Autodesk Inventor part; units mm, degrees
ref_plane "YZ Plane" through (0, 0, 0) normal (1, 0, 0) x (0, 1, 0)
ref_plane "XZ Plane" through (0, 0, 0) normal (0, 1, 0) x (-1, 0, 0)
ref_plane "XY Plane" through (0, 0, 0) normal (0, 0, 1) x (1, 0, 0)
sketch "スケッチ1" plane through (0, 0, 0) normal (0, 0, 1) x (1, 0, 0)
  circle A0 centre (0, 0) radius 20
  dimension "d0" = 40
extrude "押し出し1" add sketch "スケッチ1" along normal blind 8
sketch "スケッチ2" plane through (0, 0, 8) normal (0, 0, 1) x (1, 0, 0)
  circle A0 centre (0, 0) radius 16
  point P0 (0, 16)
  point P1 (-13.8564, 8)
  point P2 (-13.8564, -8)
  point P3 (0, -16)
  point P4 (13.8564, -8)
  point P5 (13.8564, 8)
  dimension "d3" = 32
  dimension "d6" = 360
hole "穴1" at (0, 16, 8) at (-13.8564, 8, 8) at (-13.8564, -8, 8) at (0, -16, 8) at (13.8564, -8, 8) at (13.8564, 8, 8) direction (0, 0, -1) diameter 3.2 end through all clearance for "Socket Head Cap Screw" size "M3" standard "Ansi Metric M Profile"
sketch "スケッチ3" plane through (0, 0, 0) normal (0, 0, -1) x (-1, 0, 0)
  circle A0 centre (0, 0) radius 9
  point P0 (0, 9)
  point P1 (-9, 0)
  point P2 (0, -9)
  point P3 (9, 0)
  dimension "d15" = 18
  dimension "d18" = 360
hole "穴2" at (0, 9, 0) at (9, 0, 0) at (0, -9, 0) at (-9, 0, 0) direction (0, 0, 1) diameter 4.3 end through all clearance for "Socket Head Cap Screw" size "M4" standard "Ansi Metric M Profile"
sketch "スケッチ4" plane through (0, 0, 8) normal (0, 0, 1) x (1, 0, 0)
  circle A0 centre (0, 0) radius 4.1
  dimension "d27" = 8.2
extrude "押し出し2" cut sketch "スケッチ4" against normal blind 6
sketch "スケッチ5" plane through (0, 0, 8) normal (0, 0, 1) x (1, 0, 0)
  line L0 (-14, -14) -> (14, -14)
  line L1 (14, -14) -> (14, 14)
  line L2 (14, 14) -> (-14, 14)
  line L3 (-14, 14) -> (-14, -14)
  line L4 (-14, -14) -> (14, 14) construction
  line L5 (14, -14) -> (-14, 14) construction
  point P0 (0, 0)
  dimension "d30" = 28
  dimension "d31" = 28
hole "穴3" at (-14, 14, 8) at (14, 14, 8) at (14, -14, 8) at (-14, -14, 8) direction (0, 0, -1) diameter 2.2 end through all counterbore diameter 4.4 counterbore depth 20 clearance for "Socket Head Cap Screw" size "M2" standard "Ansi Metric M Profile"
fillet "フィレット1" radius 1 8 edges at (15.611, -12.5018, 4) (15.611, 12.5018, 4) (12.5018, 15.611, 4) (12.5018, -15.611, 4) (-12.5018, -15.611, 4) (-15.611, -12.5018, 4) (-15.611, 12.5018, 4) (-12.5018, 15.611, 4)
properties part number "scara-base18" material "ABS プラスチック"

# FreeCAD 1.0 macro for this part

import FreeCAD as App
import Part
import Sketcher


def edges_at(feature, points):
    """Names of the edges that pass closest to the given points."""
    edges = feature.Shape.Edges
    near = lambda p: min(range(len(edges)), key=lambda i: edges[i].distToShape(Part.Vertex(*p))[0])
    return sorted({f"Edge{near(p) + 1}" for p in points})

doc = App.newDocument("Part")
body = doc.addObject("PartDesign::Body", "Body")

sketch1 = doc.addObject("Sketcher::SketchObject", "Sketch")
body.addObject(sketch1)
sketch1.AttachmentSupport = (doc.XY_Plane, [""])
sketch1.MapMode = "FlatFace"
sketch1.addGeometry(Part.Circle(App.Vector(0, 0, 0), App.Vector(0, 0, 1), 20), False)
sketch1.addConstraint([
    Sketcher.Constraint("Coincident", 0, 3, -1, 1),
    Sketcher.Constraint("Diameter", 0, 40.0),
])
pad1 = doc.addObject("PartDesign::Pad", "Pad")
body.addObject(pad1)
pad1.Profile = sketch1
pad1.Length = 8

sketch2 = doc.addObject("Sketcher::SketchObject", "Sketch001")
body.addObject(sketch2)
sketch2.AttachmentSupport = (doc.XY_Plane, [""])
sketch2.MapMode = "FlatFace"
sketch2.AttachmentOffset = App.Placement(App.Vector(0, 0, 8), App.Rotation())
sketch2.addGeometry([
    Part.Circle(App.Vector(0, 16, 0), App.Vector(0, 0, 1), 1.6),
    Part.Circle(App.Vector(-13.8564, 8, 0), App.Vector(0, 0, 1), 1.6),
    Part.Circle(App.Vector(-13.8564, -8, 0), App.Vector(0, 0, 1), 1.6),
    Part.Circle(App.Vector(0, -16, 0), App.Vector(0, 0, 1), 1.6),
    Part.Circle(App.Vector(13.8564, -8, 0), App.Vector(0, 0, 1), 1.6),
    Part.Circle(App.Vector(13.8564, 8, 0), App.Vector(0, 0, 1), 1.6),
], False)
sketch2.addConstraint([
    Sketcher.Constraint("Equal", 0, 1),
    Sketcher.Constraint("Equal", 1, 2),
    Sketcher.Constraint("Equal", 2, 3),
    Sketcher.Constraint("Equal", 3, 4),
    Sketcher.Constraint("Equal", 4, 5),
    Sketcher.Constraint("Symmetric", 0, 3, 3, 3, -1, 1),
    Sketcher.Constraint("Symmetric", 1, 3, 4, 3, -1, 1),
    Sketcher.Constraint("Symmetric", 2, 3, 5, 3, -1, 1),
    Sketcher.Constraint("Symmetric", 2, 3, 4, 3, -2),
    Sketcher.Constraint("PointOnObject", 0, 3, -2),
    Sketcher.Constraint("Diameter", 0, 3.2),
    Sketcher.Constraint("DistanceY", -1, 1, 0, 3, 16.0),
    Sketcher.Constraint("DistanceY", -1, 1, 1, 3, 8.0),
    Sketcher.Constraint("DistanceX", 1, 3, -1, 1, 13.8564),
])
doc.recompute()
hole = doc.addObject("PartDesign::Hole", "Hole")
body.addObject(hole)
hole.Profile = sketch2
hole.ThreadType = "None"
hole.Diameter = 3.2
hole.DepthType = "ThroughAll"

sketch3 = doc.addObject("Sketcher::SketchObject", "Sketch002")
body.addObject(sketch3)
sketch3.AttachmentSupport = (doc.XY_Plane, [""])
sketch3.MapMode = "FlatFace"
sketch3.addGeometry([
    Part.Circle(App.Vector(0, 9, 0), App.Vector(0, 0, 1), 2.15),
    Part.Circle(App.Vector(9, 0, 0), App.Vector(0, 0, 1), 2.15),
    Part.Circle(App.Vector(0, -9, 0), App.Vector(0, 0, 1), 2.15),
    Part.Circle(App.Vector(-9, 0, 0), App.Vector(0, 0, 1), 2.15),
], False)
sketch3.addConstraint([
    Sketcher.Constraint("Equal", 0, 1),
    Sketcher.Constraint("Equal", 1, 2),
    Sketcher.Constraint("Equal", 2, 3),
    Sketcher.Constraint("Symmetric", 0, 3, 2, 3, -1, 1),
    Sketcher.Constraint("Symmetric", 1, 3, 3, 3, -1, 1),
    Sketcher.Constraint("PointOnObject", 0, 3, -2),
    Sketcher.Constraint("PointOnObject", 1, 3, -1),
    Sketcher.Constraint("Diameter", 0, 4.3),
    Sketcher.Constraint("DistanceY", -1, 1, 0, 3, 9.0),
    Sketcher.Constraint("DistanceX", -1, 1, 1, 3, 9.0),
])
doc.recompute()
hole2 = doc.addObject("PartDesign::Hole", "Hole001")
body.addObject(hole2)
hole2.Profile = sketch3
hole2.ThreadType = "None"
hole2.Diameter = 4.3
hole2.DepthType = "ThroughAll"
hole2.Reversed = True

sketch4 = doc.addObject("Sketcher::SketchObject", "Sketch003")
body.addObject(sketch4)
sketch4.AttachmentSupport = (doc.XY_Plane, [""])
sketch4.MapMode = "FlatFace"
sketch4.AttachmentOffset = App.Placement(App.Vector(0, 0, 8), App.Rotation())
sketch4.addGeometry(Part.Circle(App.Vector(0, 0, 0), App.Vector(0, 0, 1), 4.1), False)
sketch4.addConstraint([
    Sketcher.Constraint("Coincident", 0, 3, -1, 1),
    Sketcher.Constraint("Diameter", 0, 8.2),
])
pocket1 = doc.addObject("PartDesign::Pocket", "Pocket")
body.addObject(pocket1)
pocket1.Profile = sketch4
pocket1.Length = 6

sketch5 = doc.addObject("Sketcher::SketchObject", "Sketch004")
body.addObject(sketch5)
sketch5.AttachmentSupport = (doc.XY_Plane, [""])
sketch5.MapMode = "FlatFace"
sketch5.AttachmentOffset = App.Placement(App.Vector(0, 0, 8), App.Rotation())
sketch5.addGeometry([
    Part.Circle(App.Vector(-14, 14, 0), App.Vector(0, 0, 1), 1.1),
    Part.Circle(App.Vector(14, 14, 0), App.Vector(0, 0, 1), 1.1),
    Part.Circle(App.Vector(14, -14, 0), App.Vector(0, 0, 1), 1.1),
    Part.Circle(App.Vector(-14, -14, 0), App.Vector(0, 0, 1), 1.1),
], False)
sketch5.addConstraint([
    Sketcher.Constraint("Equal", 0, 1),
    Sketcher.Constraint("Equal", 1, 2),
    Sketcher.Constraint("Equal", 2, 3),
    Sketcher.Constraint("Symmetric", 0, 3, 2, 3, -1, 1),
    Sketcher.Constraint("Symmetric", 1, 3, 3, 3, -1, 1),
    Sketcher.Constraint("Symmetric", 0, 3, 1, 3, -2),
    Sketcher.Constraint("Diameter", 0, 2.2),
    Sketcher.Constraint("DistanceX", 0, 3, -1, 1, 14.0),
    Sketcher.Constraint("DistanceY", -1, 1, 0, 3, 14.0),
])
doc.recompute()
hole3 = doc.addObject("PartDesign::Hole", "Hole002")
body.addObject(hole3)
hole3.Profile = sketch5
hole3.ThreadType = "None"
hole3.Diameter = 2.2
hole3.DepthType = "ThroughAll"
hole3.HoleCutType = "Counterbore"
hole3.HoleCutDiameter = 4.4
hole3.HoleCutDepth = 20
doc.recompute()

fillet = doc.addObject("PartDesign::Fillet", "Fillet")
body.addObject(fillet)
fillet.Base = (hole3, edges_at(hole3, [
    (15.611, -12.502, 4),
    (15.611, 12.502, 4),
    (12.502, 15.611, 4),
    (12.502, -15.611, 4),
    (-12.502, -15.611, 4),
    (-15.611, -12.502, 4),
    (-15.611, 12.502, 4),
    (-12.502, 15.611, 4),
]))
fillet.Radius = 1

doc.recompute()
